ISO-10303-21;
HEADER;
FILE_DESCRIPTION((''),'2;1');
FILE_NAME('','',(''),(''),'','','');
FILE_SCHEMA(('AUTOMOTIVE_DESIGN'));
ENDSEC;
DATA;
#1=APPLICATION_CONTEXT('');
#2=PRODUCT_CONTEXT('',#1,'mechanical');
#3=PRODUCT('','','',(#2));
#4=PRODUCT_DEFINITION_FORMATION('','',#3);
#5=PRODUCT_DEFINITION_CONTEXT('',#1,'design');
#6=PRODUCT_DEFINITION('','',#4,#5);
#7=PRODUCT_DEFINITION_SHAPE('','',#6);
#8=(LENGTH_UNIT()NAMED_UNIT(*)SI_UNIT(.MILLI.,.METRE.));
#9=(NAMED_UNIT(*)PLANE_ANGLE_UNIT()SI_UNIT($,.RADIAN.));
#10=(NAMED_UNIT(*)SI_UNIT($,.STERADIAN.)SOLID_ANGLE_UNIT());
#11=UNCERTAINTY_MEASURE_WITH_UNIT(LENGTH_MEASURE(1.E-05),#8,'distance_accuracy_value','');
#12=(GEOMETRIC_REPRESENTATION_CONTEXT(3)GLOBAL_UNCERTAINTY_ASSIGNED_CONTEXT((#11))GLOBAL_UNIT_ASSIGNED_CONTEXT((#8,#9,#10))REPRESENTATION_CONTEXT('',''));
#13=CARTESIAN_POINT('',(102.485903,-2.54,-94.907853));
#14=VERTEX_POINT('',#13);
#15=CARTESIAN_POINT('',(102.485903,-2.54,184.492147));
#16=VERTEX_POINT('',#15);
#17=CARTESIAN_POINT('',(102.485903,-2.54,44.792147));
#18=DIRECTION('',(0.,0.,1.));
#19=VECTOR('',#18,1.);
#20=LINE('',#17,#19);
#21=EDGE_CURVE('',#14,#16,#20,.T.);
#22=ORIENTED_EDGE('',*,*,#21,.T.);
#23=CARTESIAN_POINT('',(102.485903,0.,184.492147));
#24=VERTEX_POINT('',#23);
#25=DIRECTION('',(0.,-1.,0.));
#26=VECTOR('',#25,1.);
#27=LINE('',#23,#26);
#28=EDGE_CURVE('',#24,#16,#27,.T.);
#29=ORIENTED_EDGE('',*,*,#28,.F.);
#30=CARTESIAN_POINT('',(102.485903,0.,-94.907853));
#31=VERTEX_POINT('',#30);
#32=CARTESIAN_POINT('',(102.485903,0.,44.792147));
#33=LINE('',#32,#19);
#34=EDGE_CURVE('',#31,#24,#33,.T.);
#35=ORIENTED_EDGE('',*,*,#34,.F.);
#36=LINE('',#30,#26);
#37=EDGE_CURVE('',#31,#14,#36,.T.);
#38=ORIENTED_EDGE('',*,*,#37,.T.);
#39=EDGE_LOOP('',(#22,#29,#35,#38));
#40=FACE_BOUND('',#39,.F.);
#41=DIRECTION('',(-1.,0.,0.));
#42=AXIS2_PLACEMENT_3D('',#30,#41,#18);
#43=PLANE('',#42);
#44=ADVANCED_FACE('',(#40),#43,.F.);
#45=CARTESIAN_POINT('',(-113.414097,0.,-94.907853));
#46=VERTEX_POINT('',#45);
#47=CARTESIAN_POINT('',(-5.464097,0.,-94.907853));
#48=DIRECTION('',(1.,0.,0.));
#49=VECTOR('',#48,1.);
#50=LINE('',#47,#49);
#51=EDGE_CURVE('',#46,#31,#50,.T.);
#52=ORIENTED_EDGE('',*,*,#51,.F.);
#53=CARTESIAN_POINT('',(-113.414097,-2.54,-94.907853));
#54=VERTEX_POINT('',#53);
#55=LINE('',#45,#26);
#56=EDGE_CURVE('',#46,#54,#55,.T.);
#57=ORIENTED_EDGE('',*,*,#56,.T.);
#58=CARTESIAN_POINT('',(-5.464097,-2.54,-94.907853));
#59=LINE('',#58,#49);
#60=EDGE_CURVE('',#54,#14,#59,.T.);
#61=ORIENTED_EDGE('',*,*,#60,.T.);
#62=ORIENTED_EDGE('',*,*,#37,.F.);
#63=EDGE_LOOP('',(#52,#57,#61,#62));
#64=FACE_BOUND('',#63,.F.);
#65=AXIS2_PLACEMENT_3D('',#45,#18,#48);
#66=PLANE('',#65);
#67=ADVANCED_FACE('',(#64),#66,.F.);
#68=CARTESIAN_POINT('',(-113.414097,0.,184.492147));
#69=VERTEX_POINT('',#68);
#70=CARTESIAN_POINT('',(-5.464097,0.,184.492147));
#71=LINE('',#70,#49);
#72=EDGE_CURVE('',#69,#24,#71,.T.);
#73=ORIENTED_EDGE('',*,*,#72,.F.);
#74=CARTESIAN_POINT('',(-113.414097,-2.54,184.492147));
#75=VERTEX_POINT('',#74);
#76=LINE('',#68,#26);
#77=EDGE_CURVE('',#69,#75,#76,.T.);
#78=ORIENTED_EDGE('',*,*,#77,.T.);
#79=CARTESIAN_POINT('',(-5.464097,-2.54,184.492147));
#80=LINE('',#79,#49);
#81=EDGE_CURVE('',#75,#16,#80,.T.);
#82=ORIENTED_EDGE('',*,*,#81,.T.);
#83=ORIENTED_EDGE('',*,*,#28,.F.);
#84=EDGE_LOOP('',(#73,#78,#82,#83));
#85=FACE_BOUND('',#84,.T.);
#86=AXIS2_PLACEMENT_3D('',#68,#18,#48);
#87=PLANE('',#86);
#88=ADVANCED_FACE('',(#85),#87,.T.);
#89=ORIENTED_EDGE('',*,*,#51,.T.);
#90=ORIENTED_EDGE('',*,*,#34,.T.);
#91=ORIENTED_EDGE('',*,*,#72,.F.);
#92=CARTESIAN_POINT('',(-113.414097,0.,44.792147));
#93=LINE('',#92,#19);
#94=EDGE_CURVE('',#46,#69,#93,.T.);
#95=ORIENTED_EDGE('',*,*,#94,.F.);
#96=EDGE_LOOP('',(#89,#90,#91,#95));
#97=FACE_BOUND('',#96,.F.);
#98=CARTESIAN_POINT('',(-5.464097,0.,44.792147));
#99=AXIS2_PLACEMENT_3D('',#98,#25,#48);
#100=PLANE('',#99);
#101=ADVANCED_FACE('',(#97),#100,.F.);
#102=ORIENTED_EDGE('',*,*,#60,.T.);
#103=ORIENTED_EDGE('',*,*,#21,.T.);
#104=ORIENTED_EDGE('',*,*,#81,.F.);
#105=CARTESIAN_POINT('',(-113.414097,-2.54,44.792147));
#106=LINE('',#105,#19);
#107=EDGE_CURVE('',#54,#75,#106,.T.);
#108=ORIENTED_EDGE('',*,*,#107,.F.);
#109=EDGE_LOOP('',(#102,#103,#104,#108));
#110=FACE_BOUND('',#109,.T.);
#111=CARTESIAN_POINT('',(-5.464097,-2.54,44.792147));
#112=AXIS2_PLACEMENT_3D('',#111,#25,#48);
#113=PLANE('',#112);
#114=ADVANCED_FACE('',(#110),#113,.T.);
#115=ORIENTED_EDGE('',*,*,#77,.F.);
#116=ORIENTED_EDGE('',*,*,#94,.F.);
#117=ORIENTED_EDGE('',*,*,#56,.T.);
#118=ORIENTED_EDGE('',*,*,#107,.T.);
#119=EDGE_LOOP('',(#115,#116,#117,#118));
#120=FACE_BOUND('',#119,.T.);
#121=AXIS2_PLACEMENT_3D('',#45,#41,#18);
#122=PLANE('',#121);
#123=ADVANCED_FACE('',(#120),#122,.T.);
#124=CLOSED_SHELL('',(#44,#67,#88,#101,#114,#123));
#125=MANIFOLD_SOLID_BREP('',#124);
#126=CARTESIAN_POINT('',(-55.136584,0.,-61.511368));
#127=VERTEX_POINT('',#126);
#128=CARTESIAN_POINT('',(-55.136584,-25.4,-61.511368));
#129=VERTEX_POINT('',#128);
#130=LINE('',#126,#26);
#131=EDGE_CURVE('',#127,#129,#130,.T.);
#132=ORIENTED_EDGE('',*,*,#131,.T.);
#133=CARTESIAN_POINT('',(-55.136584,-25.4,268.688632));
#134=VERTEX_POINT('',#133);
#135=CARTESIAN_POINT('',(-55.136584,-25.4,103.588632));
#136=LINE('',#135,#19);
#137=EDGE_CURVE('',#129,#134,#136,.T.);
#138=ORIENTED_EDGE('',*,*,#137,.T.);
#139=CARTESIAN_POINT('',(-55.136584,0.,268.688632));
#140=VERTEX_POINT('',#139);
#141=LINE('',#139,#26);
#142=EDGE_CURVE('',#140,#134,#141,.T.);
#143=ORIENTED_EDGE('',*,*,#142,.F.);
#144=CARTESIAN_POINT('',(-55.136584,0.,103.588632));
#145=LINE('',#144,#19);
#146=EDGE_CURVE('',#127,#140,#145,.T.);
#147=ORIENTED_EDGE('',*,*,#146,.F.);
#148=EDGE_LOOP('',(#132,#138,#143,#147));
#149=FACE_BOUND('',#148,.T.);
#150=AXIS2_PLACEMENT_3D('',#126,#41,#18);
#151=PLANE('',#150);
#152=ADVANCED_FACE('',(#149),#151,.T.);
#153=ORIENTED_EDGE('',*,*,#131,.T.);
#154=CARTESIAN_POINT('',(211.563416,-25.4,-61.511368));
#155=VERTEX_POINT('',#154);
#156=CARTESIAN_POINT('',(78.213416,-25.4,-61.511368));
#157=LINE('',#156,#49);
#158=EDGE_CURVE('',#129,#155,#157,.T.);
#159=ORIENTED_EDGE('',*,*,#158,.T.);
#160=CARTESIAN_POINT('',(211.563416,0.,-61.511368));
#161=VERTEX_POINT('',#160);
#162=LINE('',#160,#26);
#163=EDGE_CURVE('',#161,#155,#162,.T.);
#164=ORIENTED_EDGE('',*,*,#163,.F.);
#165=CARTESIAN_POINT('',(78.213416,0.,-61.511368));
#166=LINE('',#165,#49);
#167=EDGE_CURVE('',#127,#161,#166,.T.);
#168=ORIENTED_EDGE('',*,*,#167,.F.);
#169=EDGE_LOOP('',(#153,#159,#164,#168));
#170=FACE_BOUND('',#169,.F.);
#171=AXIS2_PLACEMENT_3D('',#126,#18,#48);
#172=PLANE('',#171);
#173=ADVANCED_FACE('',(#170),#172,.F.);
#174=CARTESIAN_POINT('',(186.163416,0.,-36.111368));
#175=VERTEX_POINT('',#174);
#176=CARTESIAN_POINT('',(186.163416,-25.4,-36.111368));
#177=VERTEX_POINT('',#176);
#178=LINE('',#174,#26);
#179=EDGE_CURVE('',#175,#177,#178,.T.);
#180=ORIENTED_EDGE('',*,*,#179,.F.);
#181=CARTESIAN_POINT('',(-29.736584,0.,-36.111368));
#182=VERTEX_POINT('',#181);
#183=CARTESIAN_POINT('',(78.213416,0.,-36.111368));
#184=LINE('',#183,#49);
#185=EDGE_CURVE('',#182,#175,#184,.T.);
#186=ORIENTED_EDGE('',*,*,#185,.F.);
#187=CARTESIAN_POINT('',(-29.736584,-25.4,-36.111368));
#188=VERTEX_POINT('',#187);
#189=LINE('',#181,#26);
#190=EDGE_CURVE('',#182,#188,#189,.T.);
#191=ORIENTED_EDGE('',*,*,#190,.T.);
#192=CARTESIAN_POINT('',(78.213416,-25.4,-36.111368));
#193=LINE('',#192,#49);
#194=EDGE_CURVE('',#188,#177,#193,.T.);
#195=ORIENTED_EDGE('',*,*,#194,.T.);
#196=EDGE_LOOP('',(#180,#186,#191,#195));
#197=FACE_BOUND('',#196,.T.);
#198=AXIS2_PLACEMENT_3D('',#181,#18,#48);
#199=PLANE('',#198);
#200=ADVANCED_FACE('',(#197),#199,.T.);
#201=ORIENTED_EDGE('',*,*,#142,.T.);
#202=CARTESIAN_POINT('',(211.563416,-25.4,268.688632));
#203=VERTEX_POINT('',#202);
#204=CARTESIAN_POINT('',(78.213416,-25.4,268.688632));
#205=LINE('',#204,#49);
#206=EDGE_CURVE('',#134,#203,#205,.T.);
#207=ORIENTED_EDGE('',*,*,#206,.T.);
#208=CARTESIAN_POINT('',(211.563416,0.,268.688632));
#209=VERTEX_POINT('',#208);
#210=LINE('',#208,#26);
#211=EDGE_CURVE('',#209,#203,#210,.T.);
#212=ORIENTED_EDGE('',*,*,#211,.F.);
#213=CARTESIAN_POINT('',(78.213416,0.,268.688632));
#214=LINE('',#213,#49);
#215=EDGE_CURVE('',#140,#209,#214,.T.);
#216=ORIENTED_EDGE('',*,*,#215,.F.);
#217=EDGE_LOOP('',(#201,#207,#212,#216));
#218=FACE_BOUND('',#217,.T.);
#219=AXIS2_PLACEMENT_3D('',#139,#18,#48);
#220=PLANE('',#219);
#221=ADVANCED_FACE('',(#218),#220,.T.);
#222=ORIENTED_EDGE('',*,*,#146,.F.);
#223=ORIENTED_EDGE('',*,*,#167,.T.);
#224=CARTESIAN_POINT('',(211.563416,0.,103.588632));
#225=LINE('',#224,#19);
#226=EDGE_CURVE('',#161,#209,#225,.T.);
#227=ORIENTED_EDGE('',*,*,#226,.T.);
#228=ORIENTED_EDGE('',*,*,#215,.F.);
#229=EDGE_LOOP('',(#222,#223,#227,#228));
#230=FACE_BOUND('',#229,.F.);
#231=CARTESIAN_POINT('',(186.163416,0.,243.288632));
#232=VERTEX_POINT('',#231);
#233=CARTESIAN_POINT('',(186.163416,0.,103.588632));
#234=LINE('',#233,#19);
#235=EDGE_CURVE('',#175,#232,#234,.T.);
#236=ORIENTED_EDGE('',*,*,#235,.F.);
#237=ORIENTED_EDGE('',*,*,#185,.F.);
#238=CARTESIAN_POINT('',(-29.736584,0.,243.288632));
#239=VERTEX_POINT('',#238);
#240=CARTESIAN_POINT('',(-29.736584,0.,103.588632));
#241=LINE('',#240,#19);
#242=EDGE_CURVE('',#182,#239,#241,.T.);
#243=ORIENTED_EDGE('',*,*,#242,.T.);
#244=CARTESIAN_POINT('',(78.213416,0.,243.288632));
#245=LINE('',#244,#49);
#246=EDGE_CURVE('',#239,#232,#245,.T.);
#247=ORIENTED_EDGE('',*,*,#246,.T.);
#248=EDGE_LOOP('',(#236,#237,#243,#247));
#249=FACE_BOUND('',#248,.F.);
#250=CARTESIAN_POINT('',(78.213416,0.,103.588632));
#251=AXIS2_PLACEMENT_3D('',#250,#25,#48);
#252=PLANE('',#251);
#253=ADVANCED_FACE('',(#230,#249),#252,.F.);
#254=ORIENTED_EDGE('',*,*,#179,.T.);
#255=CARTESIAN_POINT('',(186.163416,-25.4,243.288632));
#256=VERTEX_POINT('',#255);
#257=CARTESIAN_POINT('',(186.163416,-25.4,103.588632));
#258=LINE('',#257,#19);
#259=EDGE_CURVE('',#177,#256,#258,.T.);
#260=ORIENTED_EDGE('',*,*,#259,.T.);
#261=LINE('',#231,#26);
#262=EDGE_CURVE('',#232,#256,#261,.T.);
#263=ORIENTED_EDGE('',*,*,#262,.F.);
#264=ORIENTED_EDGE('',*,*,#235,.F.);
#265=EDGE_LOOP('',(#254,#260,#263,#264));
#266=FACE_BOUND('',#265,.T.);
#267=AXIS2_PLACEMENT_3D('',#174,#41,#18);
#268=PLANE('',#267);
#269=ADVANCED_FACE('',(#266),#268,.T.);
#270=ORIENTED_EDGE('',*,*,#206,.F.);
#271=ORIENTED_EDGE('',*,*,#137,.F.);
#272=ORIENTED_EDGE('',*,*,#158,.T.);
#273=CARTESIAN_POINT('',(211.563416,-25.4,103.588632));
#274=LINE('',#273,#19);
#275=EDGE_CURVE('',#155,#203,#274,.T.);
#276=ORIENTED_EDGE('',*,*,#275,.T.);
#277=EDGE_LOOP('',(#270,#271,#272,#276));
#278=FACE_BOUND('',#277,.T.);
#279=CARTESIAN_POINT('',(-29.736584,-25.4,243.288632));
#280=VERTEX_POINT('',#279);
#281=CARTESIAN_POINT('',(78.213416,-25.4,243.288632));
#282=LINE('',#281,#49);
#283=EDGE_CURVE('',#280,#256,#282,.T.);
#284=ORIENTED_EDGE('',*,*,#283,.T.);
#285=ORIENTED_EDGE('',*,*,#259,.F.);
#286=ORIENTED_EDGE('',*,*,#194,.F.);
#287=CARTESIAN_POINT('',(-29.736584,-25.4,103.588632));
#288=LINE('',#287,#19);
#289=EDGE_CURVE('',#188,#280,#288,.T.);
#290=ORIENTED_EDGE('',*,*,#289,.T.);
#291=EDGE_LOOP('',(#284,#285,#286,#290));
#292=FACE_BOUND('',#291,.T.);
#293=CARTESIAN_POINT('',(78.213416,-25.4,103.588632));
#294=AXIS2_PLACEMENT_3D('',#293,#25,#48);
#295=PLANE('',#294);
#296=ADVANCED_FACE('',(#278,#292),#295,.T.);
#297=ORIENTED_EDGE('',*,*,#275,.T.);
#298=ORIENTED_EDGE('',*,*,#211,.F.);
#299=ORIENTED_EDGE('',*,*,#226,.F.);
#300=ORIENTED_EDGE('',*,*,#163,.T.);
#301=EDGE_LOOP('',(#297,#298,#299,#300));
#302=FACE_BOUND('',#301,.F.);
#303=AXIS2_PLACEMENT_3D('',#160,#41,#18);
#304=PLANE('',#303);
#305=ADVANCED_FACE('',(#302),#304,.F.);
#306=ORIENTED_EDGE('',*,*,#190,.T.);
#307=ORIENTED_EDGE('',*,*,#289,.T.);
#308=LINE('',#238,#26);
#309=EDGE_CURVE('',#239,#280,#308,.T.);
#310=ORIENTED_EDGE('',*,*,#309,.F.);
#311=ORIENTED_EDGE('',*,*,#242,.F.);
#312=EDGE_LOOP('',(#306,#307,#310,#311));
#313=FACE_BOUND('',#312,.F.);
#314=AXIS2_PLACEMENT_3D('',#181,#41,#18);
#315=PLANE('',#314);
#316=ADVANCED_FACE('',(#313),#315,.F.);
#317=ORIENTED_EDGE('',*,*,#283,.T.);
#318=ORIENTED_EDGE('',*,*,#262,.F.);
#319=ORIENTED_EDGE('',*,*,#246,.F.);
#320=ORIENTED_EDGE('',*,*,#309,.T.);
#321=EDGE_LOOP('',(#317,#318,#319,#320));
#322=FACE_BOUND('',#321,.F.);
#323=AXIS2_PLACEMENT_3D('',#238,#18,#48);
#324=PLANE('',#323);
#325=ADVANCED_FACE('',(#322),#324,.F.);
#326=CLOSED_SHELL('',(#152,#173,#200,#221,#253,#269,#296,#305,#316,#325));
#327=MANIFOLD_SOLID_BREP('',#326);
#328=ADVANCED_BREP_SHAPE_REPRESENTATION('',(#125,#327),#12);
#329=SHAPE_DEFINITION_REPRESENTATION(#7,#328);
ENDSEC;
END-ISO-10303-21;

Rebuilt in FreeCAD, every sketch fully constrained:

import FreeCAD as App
import Part
import Sketcher
Q = App.Units.Quantity


def add_polygon(sketch, points):
    """Adds a closed chain of lines whose ends are joined by coincident constraints."""
    first, n = sketch.GeometryCount, len(points)
    for a, b in zip(points, points[1:] + points[:1]):
        sketch.addGeometry(Part.LineSegment(App.Vector(*a, 0), App.Vector(*b, 0)), False)
    for i in range(n):
        sketch.addConstraint(Sketcher.Constraint("Coincident", first + i, 2, first + (i + 1) % n, 1))

doc = App.newDocument("Part")
params = doc.addObject("Spreadsheet::Sheet", "Params")
for row, (alias, value) in enumerate([
    ("sketch1_height", "13 in"),
    ("sketch1_height2", "11 in"),
    ("sketch1_width", "10.5 in"),
    ("sketch1_width2", "8.5 in"),
    ("pad1_length", "1 in"),
    ("sketch2_height", "11 in"),
    ("sketch2_width", "8.5 in"),
    ("pad2_length", "0.1 in"),
], start=1):
    params.set(f"A{row}", alias)
    params.set(f"B{row}", "=" + value)
    params.setAlias(f"B{row}", alias)

body = doc.addObject("PartDesign::Body", "Body")

sketch1 = body.newObject("Sketcher::SketchObject", "Sketch")
sketch1.AttachmentSupport = (doc.getObject("XZ_Plane"), [""])
sketch1.MapMode = "FlatFace"
add_polygon(sketch1, [(-55, 269), (-55, -62), (212, -62), (212, 269)])
add_polygon(sketch1, [(186, -36), (-30, -36), (-30, 243), (186, 243)])
sketch1.addConstraint([
    Sketcher.Constraint("Vertical", 0),
    Sketcher.Constraint("Horizontal", 1),
    Sketcher.Constraint("Vertical", 2),
    Sketcher.Constraint("Horizontal", 3),
    Sketcher.Constraint("Horizontal", 4),
    Sketcher.Constraint("Vertical", 5),
    Sketcher.Constraint("Horizontal", 6),
    Sketcher.Constraint("Vertical", 7),
    Sketcher.Constraint("DistanceY", 0, 2, 0, 1, Q("13 in")),
    Sketcher.Constraint("DistanceY", 5, 1, 5, 2, Q("11 in")),
    Sketcher.Constraint("DistanceX", 1, 1, 1, 2, Q("10.5 in")),
    Sketcher.Constraint("DistanceX", 4, 2, 4, 1, Q("8.5 in")),
    Sketcher.Constraint("DistanceX", 0, 2, 4, 2, Q("1 in")),
    Sketcher.Constraint("DistanceY", 0, 2, 4, 2, Q("1 in")),
    Sketcher.Constraint("DistanceY", -1, 1, 2, 2, Q("268.688632 mm")),
    Sketcher.Constraint("DistanceX", 0, 2, -1, 1, Q("55.136584 mm")),
])
sketch1.setExpression("Constraints[16]", "Params.sketch1_height")
sketch1.setExpression("Constraints[17]", "Params.sketch1_height2")
sketch1.setExpression("Constraints[18]", "Params.sketch1_width")
sketch1.setExpression("Constraints[19]", "Params.sketch1_width2")
pad1 = body.newObject("PartDesign::Pad", "Pad")
pad1.Profile = sketch1
pad1.setExpression("Length", "Params.pad1_length")
body2 = doc.addObject("PartDesign::Body", "Body001")

sketch2 = body2.newObject("Sketcher::SketchObject", "Sketch001")
sketch2.AttachmentSupport = (doc.getObject("XZ_Plane001"), [""])
sketch2.MapMode = "FlatFace"
add_polygon(sketch2, [(-113, 184), (-113, -95), (102, -95), (102, 184)])
sketch2.addConstraint([
    Sketcher.Constraint("Vertical", 0),
    Sketcher.Constraint("Horizontal", 1),
    Sketcher.Constraint("Vertical", 2),
    Sketcher.Constraint("Horizontal", 3),
    Sketcher.Constraint("DistanceY", 0, 2, 0, 1, Q("11 in")),
    Sketcher.Constraint("DistanceX", 1, 1, 1, 2, Q("8.5 in")),
    Sketcher.Constraint("DistanceX", 0, 2, -1, 1, Q("113.414097 mm")),
    Sketcher.Constraint("DistanceY", 0, 2, -1, 1, Q("94.907853 mm")),
])
sketch2.setExpression("Constraints[8]", "Params.sketch2_height")
sketch2.setExpression("Constraints[9]", "Params.sketch2_width")
pad2 = body2.newObject("PartDesign::Pad", "Pad001")
pad2.Profile = sketch2
pad2.setExpression("Length", "Params.pad2_length")

doc.recompute()
